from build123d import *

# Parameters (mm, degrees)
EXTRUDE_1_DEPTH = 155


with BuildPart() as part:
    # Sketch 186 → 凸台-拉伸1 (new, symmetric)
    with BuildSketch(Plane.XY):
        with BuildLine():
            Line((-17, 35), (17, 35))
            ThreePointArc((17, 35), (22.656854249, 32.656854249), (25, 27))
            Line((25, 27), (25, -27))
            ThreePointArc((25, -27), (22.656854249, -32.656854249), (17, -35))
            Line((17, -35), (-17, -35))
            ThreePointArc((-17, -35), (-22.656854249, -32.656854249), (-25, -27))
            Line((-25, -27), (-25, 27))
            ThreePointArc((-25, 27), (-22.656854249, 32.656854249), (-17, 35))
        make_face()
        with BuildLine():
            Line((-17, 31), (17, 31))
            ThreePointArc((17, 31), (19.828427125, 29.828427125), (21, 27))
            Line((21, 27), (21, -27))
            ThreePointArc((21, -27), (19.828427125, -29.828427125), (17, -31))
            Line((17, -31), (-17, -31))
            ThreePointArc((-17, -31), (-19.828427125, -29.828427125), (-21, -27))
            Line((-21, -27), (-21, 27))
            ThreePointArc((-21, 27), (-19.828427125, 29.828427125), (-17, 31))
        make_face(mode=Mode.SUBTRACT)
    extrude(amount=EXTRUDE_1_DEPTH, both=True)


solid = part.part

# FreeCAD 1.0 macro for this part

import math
import FreeCAD as App
import Part
import Sketcher

doc = App.newDocument("Part")
body = doc.addObject("PartDesign::Body", "Body")

# Sketch on XY plane
sketch1 = doc.addObject("Sketcher::SketchObject", "Sketch")
body.addObject(sketch1)
sketch1.AttachmentSupport = (doc.XY_Plane, [""])
sketch1.MapMode = "FlatFace"
sketch1.addGeometry([
    Part.LineSegment(App.Vector(17, 35, 0), App.Vector(-17, 35, 0)),  # 0
    Part.ArcOfCircle(Part.Circle(App.Vector(-17, 27, 0), App.Vector(0, 0, 1), 8), math.radians(90), math.radians(180)),  # 1
    Part.LineSegment(App.Vector(-25, 27, 0), App.Vector(-25, -27, 0)),  # 2
    Part.ArcOfCircle(Part.Circle(App.Vector(-17, -27, 0), App.Vector(0, 0, 1), 8), math.radians(-180), math.radians(-90)),  # 3
    Part.LineSegment(App.Vector(-17, -35, 0), App.Vector(17, -35, 0)),  # 4
    Part.ArcOfCircle(Part.Circle(App.Vector(17, -27, 0), App.Vector(0, 0, 1), 8), math.radians(-90), math.radians(0)),  # 5
    Part.LineSegment(App.Vector(25, -27, 0), App.Vector(25, 27, 0)),  # 6
    Part.ArcOfCircle(Part.Circle(App.Vector(17, 27, 0), App.Vector(0, 0, 1), 8), math.radians(0), math.radians(90)),  # 7
    Part.LineSegment(App.Vector(-17, 31, 0), App.Vector(17, 31, 0)),  # 8
    Part.ArcOfCircle(Part.Circle(App.Vector(17, 27, 0), App.Vector(0, 0, 1), 4), math.radians(0), math.radians(90)),  # 9
    Part.LineSegment(App.Vector(21, 27, 0), App.Vector(21, -27, 0)),  # 10
    Part.ArcOfCircle(Part.Circle(App.Vector(17, -27, 0), App.Vector(0, 0, 1), 4), math.radians(-90), math.radians(0)),  # 11
    Part.LineSegment(App.Vector(17, -31, 0), App.Vector(-17, -31, 0)),  # 12
    Part.ArcOfCircle(Part.Circle(App.Vector(-17, -27, 0), App.Vector(0, 0, 1), 4), math.radians(180), math.radians(270)),  # 13
    Part.LineSegment(App.Vector(-21, -27, 0), App.Vector(-21, 27, 0)),  # 14
    Part.ArcOfCircle(Part.Circle(App.Vector(-17, 27, 0), App.Vector(0, 0, 1), 4), math.radians(90), math.radians(180)),  # 15
], False)
sketch1.addConstraint([
    Sketcher.Constraint("Tangent", 0, 2, 1, 1),
    Sketcher.Constraint("Tangent", 1, 2, 2, 1),
    Sketcher.Constraint("Tangent", 2, 2, 3, 1),
    Sketcher.Constraint("Tangent", 3, 2, 4, 1),
    Sketcher.Constraint("Tangent", 4, 2, 5, 1),
    Sketcher.Constraint("Tangent", 5, 2, 6, 1),
    Sketcher.Constraint("Tangent", 6, 2, 7, 1),
    Sketcher.Constraint("Tangent", 7, 2, 0, 1),
    Sketcher.Constraint("Tangent", 8, 2, 9, 2),
    Sketcher.Constraint("Tangent", 9, 1, 10, 1),
    Sketcher.Constraint("Tangent", 10, 2, 11, 2),
    Sketcher.Constraint("Tangent", 11, 1, 12, 1),
    Sketcher.Constraint("Tangent", 12, 2, 13, 2),
    Sketcher.Constraint("Tangent", 13, 1, 14, 1),
    Sketcher.Constraint("Tangent", 14, 2, 15, 2),
    Sketcher.Constraint("Tangent", 15, 1, 8, 1),
    Sketcher.Constraint("Horizontal", 0),
    Sketcher.Constraint("Vertical", 2),
    Sketcher.Constraint("Horizontal", 4),
    Sketcher.Constraint("Vertical", 6),
    Sketcher.Constraint("Horizontal", 8),
    Sketcher.Constraint("Vertical", 10),
    Sketcher.Constraint("Horizontal", 12),
    Sketcher.Constraint("Vertical", 14),
    Sketcher.Constraint("Coincident", 9, 3, 7, 3),
    Sketcher.Constraint("Coincident", 11, 3, 5, 3),
    Sketcher.Constraint("Coincident", 13, 3, 3, 3),
    Sketcher.Constraint("Equal", 1, 3),
    Sketcher.Constraint("Equal", 3, 5),
    Sketcher.Constraint("Equal", 5, 7),
    Sketcher.Constraint("Equal", 13, 15),
    Sketcher.Constraint("Symmetric", 1, 3, 5, 3, -1, 1),
    Sketcher.Constraint("Radius", 1, 8.0),
    Sketcher.Constraint("Radius", 9, 4.0),
    Sketcher.Constraint("DistanceX", 0, 2, 0, 1, 34.0),
    Sketcher.Constraint("DistanceY", 2, 2, 2, 1, 54.0),
])
pad1 = doc.addObject("PartDesign::Pad", "Pad")
body.addObject(pad1)
pad1.Profile = sketch1
pad1.Length = 310
pad1.Midplane = True

doc.recompute()
